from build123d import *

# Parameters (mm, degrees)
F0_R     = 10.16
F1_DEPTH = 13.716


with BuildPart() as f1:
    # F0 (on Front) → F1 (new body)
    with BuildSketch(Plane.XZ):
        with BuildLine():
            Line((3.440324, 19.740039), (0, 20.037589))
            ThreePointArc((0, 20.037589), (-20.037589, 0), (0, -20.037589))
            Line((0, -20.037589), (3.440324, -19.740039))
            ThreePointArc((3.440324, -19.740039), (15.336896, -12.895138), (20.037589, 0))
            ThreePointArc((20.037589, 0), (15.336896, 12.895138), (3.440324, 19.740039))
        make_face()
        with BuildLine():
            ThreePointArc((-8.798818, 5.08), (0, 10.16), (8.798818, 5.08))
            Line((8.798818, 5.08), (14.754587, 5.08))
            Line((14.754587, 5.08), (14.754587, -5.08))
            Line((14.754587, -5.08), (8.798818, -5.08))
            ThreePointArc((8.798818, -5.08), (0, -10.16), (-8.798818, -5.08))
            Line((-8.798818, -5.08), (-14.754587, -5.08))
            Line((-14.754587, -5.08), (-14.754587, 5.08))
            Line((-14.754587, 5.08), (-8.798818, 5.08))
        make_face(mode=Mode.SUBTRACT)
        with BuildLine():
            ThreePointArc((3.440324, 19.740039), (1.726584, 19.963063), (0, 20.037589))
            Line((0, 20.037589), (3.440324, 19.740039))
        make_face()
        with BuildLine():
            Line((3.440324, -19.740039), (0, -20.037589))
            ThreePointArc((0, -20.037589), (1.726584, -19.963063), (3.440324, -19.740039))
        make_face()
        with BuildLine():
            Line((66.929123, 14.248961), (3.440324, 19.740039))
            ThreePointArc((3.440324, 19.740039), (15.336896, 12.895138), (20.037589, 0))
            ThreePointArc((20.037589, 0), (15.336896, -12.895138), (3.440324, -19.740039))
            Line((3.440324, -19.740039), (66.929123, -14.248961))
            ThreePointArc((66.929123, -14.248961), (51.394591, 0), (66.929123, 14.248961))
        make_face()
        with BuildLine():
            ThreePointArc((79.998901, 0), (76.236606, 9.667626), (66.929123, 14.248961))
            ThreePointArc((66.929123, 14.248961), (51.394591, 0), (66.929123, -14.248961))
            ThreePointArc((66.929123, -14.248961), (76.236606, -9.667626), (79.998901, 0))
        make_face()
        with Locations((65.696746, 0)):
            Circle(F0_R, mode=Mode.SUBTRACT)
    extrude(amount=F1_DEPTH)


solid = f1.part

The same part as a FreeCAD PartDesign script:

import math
import FreeCAD as App
import Part
import Sketcher
Q = App.Units.Quantity

doc = App.newDocument("Part")
body = doc.addObject("PartDesign::Body", "Body")

# Sketch on XZ plane
sketch1 = body.newObject("Sketcher::SketchObject", "Sketch")
sketch1.AttachmentSupport = (doc.getObject("XZ_Plane"), [""])
sketch1.MapMode = "FlatFace"
sketch1.addGeometry([
    Part.ArcOfCircle(Part.Circle(App.Vector(0, 0, 0), App.Vector(0, 0, 1), 20), math.radians(80.11), math.radians(90)),  # 0
    Part.ArcOfCircle(Part.Circle(App.Vector(0, 0, 0), App.Vector(0, 0, 1), 20), math.radians(90), math.radians(270)),  # 1
    Part.ArcOfCircle(Part.Circle(App.Vector(0, 0, 0), App.Vector(0, 0, 1), 20), math.radians(-90), math.radians(-80.11)),  # 2
    Part.LineSegment(App.Vector(3.4, -19.7, 0), App.Vector(66.9, -14.2, 0)),  # 3
    Part.ArcOfCircle(Part.Circle(App.Vector(65.7, 0, 0), App.Vector(0, 0, 1), 14.3), math.radians(-85), math.radians(0)),  # 4
    Part.ArcOfCircle(Part.Circle(App.Vector(65.7, 0, 0), App.Vector(0, 0, 1), 14.3), math.radians(0), math.radians(85)),  # 5
    Part.LineSegment(App.Vector(66.9, 14.2, 0), App.Vector(3.4, 19.7, 0)),  # 6
    Part.LineSegment(App.Vector(-14.8, 5.1, 0), App.Vector(-8.8, 5.1, 0)),  # 7
    Part.ArcOfCircle(Part.Circle(App.Vector(0, 0, 0), App.Vector(0, 0, 1), 10.2), math.radians(30), math.radians(150)),  # 8
    Part.LineSegment(App.Vector(8.8, 5.1, 0), App.Vector(14.8, 5.1, 0)),  # 9
    Part.LineSegment(App.Vector(14.8, 5.1, 0), App.Vector(14.8, -5.1, 0)),  # 10
    Part.LineSegment(App.Vector(14.8, -5.1, 0), App.Vector(8.8, -5.1, 0)),  # 11
    Part.ArcOfCircle(Part.Circle(App.Vector(0, 0, 0), App.Vector(0, 0, 1), 10.2), math.radians(-150), math.radians(-30)),  # 12
    Part.LineSegment(App.Vector(-8.8, -5.1, 0), App.Vector(-14.8, -5.1, 0)),  # 13
    Part.LineSegment(App.Vector(-14.8, -5.1, 0), App.Vector(-14.8, 5.1, 0)),  # 14
    Part.Circle(App.Vector(65.7, 0, 0), App.Vector(0, 0, 1), 10.2),  # 15
], False)
sketch1.addConstraint([
    Sketcher.Constraint("Tangent", 0, 2, 1, 1),
    Sketcher.Constraint("Tangent", 1, 2, 2, 1),
    Sketcher.Constraint("Coincident", 2, 2, 3, 1),
    Sketcher.Constraint("Tangent", 3, 2, 4, 1),
    Sketcher.Constraint("Tangent", 4, 2, 5, 1),
    Sketcher.Constraint("Tangent", 5, 2, 6, 1),
    Sketcher.Constraint("Coincident", 6, 2, 0, 1),
    Sketcher.Constraint("Coincident", 7, 2, 8, 2),
    Sketcher.Constraint("Coincident", 8, 1, 9, 1),
    Sketcher.Constraint("Coincident", 9, 2, 10, 1),
    Sketcher.Constraint("Coincident", 10, 2, 11, 1),
    Sketcher.Constraint("Coincident", 11, 2, 12, 2),
    Sketcher.Constraint("Coincident", 12, 1, 13, 1),
    Sketcher.Constraint("Coincident", 13, 2, 14, 1),
    Sketcher.Constraint("Coincident", 14, 2, 7, 1),
    Sketcher.Constraint("Horizontal", 7),
    Sketcher.Constraint("Horizontal", 9),
    Sketcher.Constraint("Vertical", 10),
    Sketcher.Constraint("Horizontal", 11),
    Sketcher.Constraint("Horizontal", 13),
    Sketcher.Constraint("Vertical", 14),
    Sketcher.Constraint("Coincident", 1, 3, -1, 1),
    Sketcher.Constraint("Coincident", 8, 3, -1, 1),
    Sketcher.Constraint("Coincident", 12, 3, -1, 1),
    Sketcher.Constraint("Coincident", 15, 3, 4, 3),
    Sketcher.Constraint("Equal", 0, 2),
    Sketcher.Constraint("Equal", 4, 5),
    Sketcher.Constraint("Equal", 8, 12),
    Sketcher.Constraint("Equal", 12, 15),
    Sketcher.Constraint("Symmetric", 9, 2, 13, 2, -1, 1),
    Sketcher.Constraint("Symmetric", 3, 2, 5, 2, -1),
    Sketcher.Constraint("PointOnObject", 0, 2, -2),
    Sketcher.Constraint("PointOnObject", 1, 2, -2),
    Sketcher.Constraint("PointOnObject", 4, 2, -1),
    Sketcher.Constraint("Horizontal", 7, 2, 8, 1),
    Sketcher.Constraint("Horizontal", 11, 2, 12, 1),
    Sketcher.Constraint("Diameter", 15, Q("0.8 in")),
    Sketcher.Constraint("DistanceY", 10, 2, 10, 1, Q("0.4 in")),
    Sketcher.Constraint("Radius", 0, Q("20.037551 mm")),
    Sketcher.Constraint("Radius", 1, Q("20.037589 mm")),
    Sketcher.Constraint("Radius", 4, Q("14.302155 mm")),
    Sketcher.Constraint("DistanceX", 7, 1, 7, 2, Q("5.955769 mm")),
    Sketcher.Constraint("DistanceX", -1, 1, 4, 2, Q("79.998901 mm")),
    Sketcher.Constraint("DistanceY", 2, 2, 2, 3, Q("19.740001 mm")),
])
pad1 = body.newObject("PartDesign::Pad", "Pad")
pad1.Profile = sketch1
pad1.Length = Q("0.54 in")

doc.recompute()
